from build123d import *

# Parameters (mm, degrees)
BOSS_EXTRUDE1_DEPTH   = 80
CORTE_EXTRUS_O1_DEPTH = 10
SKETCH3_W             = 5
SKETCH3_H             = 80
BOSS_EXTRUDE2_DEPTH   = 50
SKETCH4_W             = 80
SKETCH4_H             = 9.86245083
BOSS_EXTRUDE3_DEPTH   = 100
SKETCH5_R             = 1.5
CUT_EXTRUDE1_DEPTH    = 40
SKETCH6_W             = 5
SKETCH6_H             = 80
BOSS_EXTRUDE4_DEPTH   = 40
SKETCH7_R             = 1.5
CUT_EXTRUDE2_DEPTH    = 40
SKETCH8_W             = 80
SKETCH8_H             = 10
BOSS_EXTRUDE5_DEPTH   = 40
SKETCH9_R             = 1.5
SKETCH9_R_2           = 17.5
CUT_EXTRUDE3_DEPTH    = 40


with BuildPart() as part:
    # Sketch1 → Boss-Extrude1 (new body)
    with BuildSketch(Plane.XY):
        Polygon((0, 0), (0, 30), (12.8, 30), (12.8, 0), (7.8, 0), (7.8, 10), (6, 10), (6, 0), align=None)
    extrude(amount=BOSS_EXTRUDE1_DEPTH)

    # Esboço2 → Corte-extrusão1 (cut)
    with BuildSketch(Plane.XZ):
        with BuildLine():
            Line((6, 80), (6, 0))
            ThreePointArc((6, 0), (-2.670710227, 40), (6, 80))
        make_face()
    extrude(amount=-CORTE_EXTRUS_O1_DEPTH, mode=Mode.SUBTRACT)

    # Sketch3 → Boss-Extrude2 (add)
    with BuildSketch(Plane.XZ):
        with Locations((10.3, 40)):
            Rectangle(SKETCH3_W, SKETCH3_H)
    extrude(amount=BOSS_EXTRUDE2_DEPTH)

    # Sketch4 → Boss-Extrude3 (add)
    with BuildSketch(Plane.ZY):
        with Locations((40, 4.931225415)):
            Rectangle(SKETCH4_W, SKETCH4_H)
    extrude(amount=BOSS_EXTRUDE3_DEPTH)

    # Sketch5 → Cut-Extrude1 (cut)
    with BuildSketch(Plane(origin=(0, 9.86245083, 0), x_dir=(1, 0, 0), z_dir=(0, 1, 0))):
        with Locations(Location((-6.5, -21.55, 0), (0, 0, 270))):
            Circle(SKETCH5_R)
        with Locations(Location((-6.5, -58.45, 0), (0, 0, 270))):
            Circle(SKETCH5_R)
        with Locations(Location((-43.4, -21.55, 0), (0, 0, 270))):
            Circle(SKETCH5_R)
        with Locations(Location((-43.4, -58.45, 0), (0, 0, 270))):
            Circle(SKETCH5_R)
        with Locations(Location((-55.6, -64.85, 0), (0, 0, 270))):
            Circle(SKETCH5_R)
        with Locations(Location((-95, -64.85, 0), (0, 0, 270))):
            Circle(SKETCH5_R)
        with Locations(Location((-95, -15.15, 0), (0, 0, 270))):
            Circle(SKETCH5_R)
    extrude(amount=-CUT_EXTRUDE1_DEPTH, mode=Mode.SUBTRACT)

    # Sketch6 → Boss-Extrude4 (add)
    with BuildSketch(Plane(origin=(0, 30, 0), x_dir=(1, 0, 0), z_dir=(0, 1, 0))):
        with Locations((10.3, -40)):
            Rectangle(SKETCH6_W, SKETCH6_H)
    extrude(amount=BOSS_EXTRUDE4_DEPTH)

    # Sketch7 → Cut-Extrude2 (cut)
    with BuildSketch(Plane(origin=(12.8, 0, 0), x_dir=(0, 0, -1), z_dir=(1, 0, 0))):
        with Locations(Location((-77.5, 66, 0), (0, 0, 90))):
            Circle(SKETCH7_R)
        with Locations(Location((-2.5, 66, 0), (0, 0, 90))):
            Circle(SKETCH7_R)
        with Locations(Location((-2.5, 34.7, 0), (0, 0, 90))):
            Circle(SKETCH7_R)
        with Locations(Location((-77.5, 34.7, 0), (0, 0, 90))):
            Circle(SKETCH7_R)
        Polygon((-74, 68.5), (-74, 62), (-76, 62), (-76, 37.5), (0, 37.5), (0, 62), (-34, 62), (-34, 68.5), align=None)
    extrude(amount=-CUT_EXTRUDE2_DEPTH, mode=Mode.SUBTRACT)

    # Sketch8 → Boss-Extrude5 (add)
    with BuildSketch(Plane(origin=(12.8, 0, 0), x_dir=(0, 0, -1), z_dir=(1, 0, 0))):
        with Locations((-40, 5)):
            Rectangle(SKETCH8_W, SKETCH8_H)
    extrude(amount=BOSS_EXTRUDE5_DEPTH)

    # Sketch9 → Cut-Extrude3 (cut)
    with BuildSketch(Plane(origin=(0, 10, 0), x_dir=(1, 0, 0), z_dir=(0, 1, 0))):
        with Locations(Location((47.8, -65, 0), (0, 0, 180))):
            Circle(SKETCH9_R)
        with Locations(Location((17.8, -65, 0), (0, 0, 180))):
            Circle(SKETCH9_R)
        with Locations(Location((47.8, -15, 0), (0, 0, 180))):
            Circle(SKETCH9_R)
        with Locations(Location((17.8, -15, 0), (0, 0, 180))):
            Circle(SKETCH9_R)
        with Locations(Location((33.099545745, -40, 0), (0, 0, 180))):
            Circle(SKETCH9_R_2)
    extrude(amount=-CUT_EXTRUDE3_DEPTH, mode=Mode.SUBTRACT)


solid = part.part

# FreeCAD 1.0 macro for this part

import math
import FreeCAD as App
import Part
import Sketcher

V = App.Vector
Q = App.Units.Quantity

doc = App.newDocument("Part")
params = doc.addObject("Spreadsheet::Sheet", "Params")
for row, (alias, value) in enumerate([
    ("sketch1_width", "6 mm"),
    ("sketch1_width2", "5 mm"),
    ("sketch1_height", "30 mm"),
    ("sketch1_height2", "10 mm"),
    ("sketch1_width3", "1.8 mm"),
    ("pad1_length", "80 mm"),
    ("sketch2_radius", "96.6 mm"),
    ("sketch2_height", "80 mm"),
    ("pocket1_length", "10 mm"),
    ("sketch3_width", "5 mm"),
    ("sketch3_height", "80 mm"),
    ("pad2_length", "50 mm"),
    ("sketch4_height", "80 mm"),
    ("pad3_length", "100 mm"),
    ("sketch5_diameter", "3 mm"),
    ("pocket2_length", "40 mm"),
    ("sketch6_width", "5 mm"),
    ("sketch6_height", "80 mm"),
    ("pad4_length", "40 mm"),
    ("sketch7_diameter", "3 mm"),
    ("sketch7_height", "2 mm"),
    ("sketch7_height2", "76 mm"),
    ("sketch7_height3", "34 mm"),
    ("sketch7_width", "6.5 mm"),
    ("pocket3_length", "40 mm"),
    ("sketch8_width", "10 mm"),
    ("sketch8_height", "80 mm"),
    ("pad5_length", "40 mm"),
    ("sketch9_diameter", "3 mm"),
    ("sketch9_diameter2", "35 mm"),
    ("pocket4_length", "40 mm"),
], start=1):
    params.set(f"A{row}", alias)
    params.set(f"B{row}", "=" + value)
    params.setAlias(f"B{row}", alias)

body = doc.addObject("PartDesign::Body", "Body")

sketch1 = body.newObject("Sketcher::SketchObject", "Sketch")
sketch1.AttachmentSupport = (doc.getObject("XY_Plane"), [""])
sketch1.MapMode = "FlatFace"
sketch1.addGeometry([
    Part.LineSegment(V(0, 30, 0), V(0, 0, 0)),
    Part.LineSegment(V(0, 0, 0), V(6, 0, 0)),
    Part.LineSegment(V(6, 0, 0), V(6, 10, 0)),
    Part.LineSegment(V(6, 10, 0), V(7.8, 10, 0)),
    Part.LineSegment(V(7.8, 10, 0), V(7.8, 0, 0)),
    Part.LineSegment(V(7.8, 0, 0), V(12.8, 0, 0)),
    Part.LineSegment(V(12.8, 0, 0), V(12.8, 30, 0)),
    Part.LineSegment(V(12.8, 30, 0), V(0, 30, 0)),
], False)
sketch1.addConstraint([
    Sketcher.Constraint("Coincident", 0, 2, 1, 1),
    Sketcher.Constraint("Coincident", 1, 2, 2, 1),
    Sketcher.Constraint("Coincident", 2, 2, 3, 1),
    Sketcher.Constraint("Coincident", 3, 2, 4, 1),
    Sketcher.Constraint("Coincident", 4, 2, 5, 1),
    Sketcher.Constraint("Coincident", 5, 2, 6, 1),
    Sketcher.Constraint("Coincident", 6, 2, 7, 1),
    Sketcher.Constraint("Coincident", 7, 2, 0, 1),
    Sketcher.Constraint("Vertical", 0),
    Sketcher.Constraint("Horizontal", 1),
    Sketcher.Constraint("Vertical", 2),
    Sketcher.Constraint("Horizontal", 3),
    Sketcher.Constraint("Vertical", 4),
    Sketcher.Constraint("Horizontal", 5),
    Sketcher.Constraint("Vertical", 6),
    Sketcher.Constraint("Horizontal", 7),
    Sketcher.Constraint("Coincident", 0, 2, -1, 1),
    Sketcher.Constraint("PointOnObject", 4, 2, -1),
    Sketcher.Constraint("DistanceX", 1, 1, 1, 2, Q("6 mm")),
    Sketcher.Constraint("DistanceX", 5, 1, 5, 2, Q("5 mm")),
    Sketcher.Constraint("DistanceY", 0, 2, 0, 1, Q("30 mm")),
    Sketcher.Constraint("DistanceY", 2, 1, 2, 2, Q("10 mm")),
    Sketcher.Constraint("DistanceX", 3, 1, 3, 2, Q("1.8 mm")),
])
sketch1.setExpression("Constraints[18]", "Params.sketch1_width")
sketch1.setExpression("Constraints[19]", "Params.sketch1_width2")
sketch1.setExpression("Constraints[20]", "Params.sketch1_height")
sketch1.setExpression("Constraints[21]", "Params.sketch1_height2")
sketch1.setExpression("Constraints[22]", "Params.sketch1_width3")
pad1 = body.newObject("PartDesign::Pad", "Pad")
pad1.Profile = sketch1
pad1.setExpression("Length", "Params.pad1_length")

sketch2 = body.newObject("Sketcher::SketchObject", "Sketch001")
sketch2.AttachmentSupport = (doc.getObject("XZ_Plane"), [""])
sketch2.MapMode = "FlatFace"
sketch2.addGeometry([
    Part.LineSegment(V(6, 0, 0), V(6, 80, 0)),
    Part.ArcOfCircle(Part.Circle(V(94, 40, 0), V(0, 0, 1), 97), math.radians(156), math.radians(204)),
], False)
sketch2.addConstraint([
    Sketcher.Constraint("Coincident", 0, 1, 1, 2),
    Sketcher.Constraint("Coincident", 1, 1, 0, 2),
    Sketcher.Constraint("Vertical", 0),
    Sketcher.Constraint("PointOnObject", 0, 1, -1),
    Sketcher.Constraint("Radius", 1, Q("96.6 mm")),
    Sketcher.Constraint("DistanceY", 0, 1, 0, 2, Q("80 mm")),
    Sketcher.Constraint("DistanceX", -1, 1, 0, 1, Q("6 mm")),
])
sketch2.setExpression("Constraints[4]", "Params.sketch2_radius")
sketch2.setExpression("Constraints[5]", "Params.sketch2_height")
pocket1 = body.newObject("PartDesign::Pocket", "Pocket")
pocket1.Profile = sketch2
pocket1.setExpression("Length", "Params.pocket1_length")

sketch3 = body.newObject("Sketcher::SketchObject", "Sketch002")
sketch3.AttachmentSupport = (doc.getObject("XZ_Plane"), [""])
sketch3.MapMode = "FlatFace"
sketch3.addGeometry([
    Part.LineSegment(V(8, 80, 0), V(8, 0, 0)),
    Part.LineSegment(V(8, 0, 0), V(13, 0, 0)),
    Part.LineSegment(V(13, 0, 0), V(13, 80, 0)),
    Part.LineSegment(V(13, 80, 0), V(8, 80, 0)),
], False)
sketch3.addConstraint([
    Sketcher.Constraint("Coincident", 0, 2, 1, 1),
    Sketcher.Constraint("Coincident", 1, 2, 2, 1),
    Sketcher.Constraint("Coincident", 2, 2, 3, 1),
    Sketcher.Constraint("Coincident", 3, 2, 0, 1),
    Sketcher.Constraint("Vertical", 0),
    Sketcher.Constraint("Horizontal", 1),
    Sketcher.Constraint("Vertical", 2),
    Sketcher.Constraint("Horizontal", 3),
    Sketcher.Constraint("PointOnObject", 0, 2, -1),
    Sketcher.Constraint("DistanceX", 1, 1, 1, 2, Q("5 mm")),
    Sketcher.Constraint("DistanceY", 0, 2, 0, 1, Q("80 mm")),
    Sketcher.Constraint("DistanceX", -1, 1, 0, 2, Q("7.8 mm")),
])
sketch3.setExpression("Constraints[9]", "Params.sketch3_width")
sketch3.setExpression("Constraints[10]", "Params.sketch3_height")
pad2 = body.newObject("PartDesign::Pad", "Pad001")
pad2.Profile = sketch3
pad2.setExpression("Length", "Params.pad2_length")

sketch4 = body.newObject("Sketcher::SketchObject", "Sketch003")
sketch4.AttachmentSupport = (doc.getObject("YZ_Plane"), [""])
sketch4.MapMode = "FlatFace"
sketch4.addGeometry([
    Part.LineSegment(V(10, 0, 0), V(0, 0, 0)),
    Part.LineSegment(V(0, 0, 0), V(0, 80, 0)),
    Part.LineSegment(V(0, 80, 0), V(10, 80, 0)),
    Part.LineSegment(V(10, 80, 0), V(10, 0, 0)),
], False)
sketch4.addConstraint([
    Sketcher.Constraint("Coincident", 0, 2, 1, 1),
    Sketcher.Constraint("Coincident", 1, 2, 2, 1),
    Sketcher.Constraint("Coincident", 2, 2, 3, 1),
    Sketcher.Constraint("Coincident", 3, 2, 0, 1),
    Sketcher.Constraint("Horizontal", 0),
    Sketcher.Constraint("Vertical", 1),
    Sketcher.Constraint("Horizontal", 2),
    Sketcher.Constraint("Vertical", 3),
    Sketcher.Constraint("Coincident", 0, 2, -1, 1),
    Sketcher.Constraint("DistanceY", 1, 1, 1, 2, Q("80 mm")),
    Sketcher.Constraint("DistanceX", 0, 2, 0, 1, Q("9.862451 mm")),
])
sketch4.setExpression("Constraints[9]", "Params.sketch4_height")
pad3 = body.newObject("PartDesign::Pad", "Pad002")
pad3.Profile = sketch4
pad3.setExpression("Length", "Params.pad3_length")
pad3.Reversed = True

sketch5 = body.newObject("Sketcher::SketchObject", "Sketch004")
sketch5.AttachmentSupport = (doc.getObject("XZ_Plane"), [""])
sketch5.MapMode = "FlatFace"
sketch5.AttachmentOffset = App.Placement(V(0, 0, -9.862451), App.Rotation())
sketch5.addGeometry([
    Part.Circle(V(-6.5, 21.6, 0), V(0, 0, 1), 1.5),
    Part.Circle(V(-6.5, 58.5, 0), V(0, 0, 1), 1.5),
    Part.Circle(V(-43.4, 21.6, 0), V(0, 0, 1), 1.5),
    Part.Circle(V(-43.4, 58.5, 0), V(0, 0, 1), 1.5),
    Part.Circle(V(-55.6, 64.8, 0), V(0, 0, 1), 1.5),
    Part.Circle(V(-95, 64.8, 0), V(0, 0, 1), 1.5),
    Part.Circle(V(-95, 15.2, 0), V(0, 0, 1), 1.5),
], False)
sketch5.addConstraint([
    Sketcher.Constraint("Equal", 0, 1),
    Sketcher.Constraint("Equal", 1, 2),
    Sketcher.Constraint("Equal", 2, 3),
    Sketcher.Constraint("Equal", 3, 4),
    Sketcher.Constraint("Equal", 4, 5),
    Sketcher.Constraint("Equal", 5, 6),
    Sketcher.Constraint("Horizontal", 0, 3, 2, 3),
    Sketcher.Constraint("Horizontal", 1, 3, 3, 3),
    Sketcher.Constraint("Horizontal", 4, 3, 5, 3),
    Sketcher.Constraint("Vertical", 0, 3, 1, 3),
    Sketcher.Constraint("Vertical", 2, 3, 3, 3),
    Sketcher.Constraint("Vertical", 5, 3, 6, 3),
    Sketcher.Constraint("Diameter", 0, Q("3 mm")),
    Sketcher.Constraint("DistanceX", 5, 3, -1, 1, Q("95 mm")),
    Sketcher.Constraint("DistanceX", 0, 3, -1, 1, Q("6.5 mm")),
    Sketcher.Constraint("DistanceX", 2, 3, -1, 1, Q("43.4 mm")),
    Sketcher.Constraint("DistanceX", 4, 3, -1, 1, Q("55.6 mm")),
    Sketcher.Constraint("DistanceY", 0, 3, 1, 3, Q("36.9 mm")),
    Sketcher.Constraint("DistanceY", 3, 3, 4, 3, Q("6.4 mm")),
    Sketcher.Constraint("DistanceY", 6, 3, 5, 3, Q("49.7 mm")),
    Sketcher.Constraint("DistanceY", -1, 1, 0, 3, Q("21.55 mm")),
])
sketch5.setExpression("Constraints[12]", "Params.sketch5_diameter")
pocket2 = body.newObject("PartDesign::Pocket", "Pocket001")
pocket2.Profile = sketch5
pocket2.setExpression("Length", "Params.pocket2_length")
pocket2.Reversed = True

sketch6 = body.newObject("Sketcher::SketchObject", "Sketch005")
sketch6.AttachmentSupport = (doc.getObject("XZ_Plane"), [""])
sketch6.MapMode = "FlatFace"
sketch6.AttachmentOffset = App.Placement(V(0, 0, -30), App.Rotation())
sketch6.addGeometry([
    Part.LineSegment(V(8, 0, 0), V(8, 80, 0)),
    Part.LineSegment(V(8, 80, 0), V(13, 80, 0)),
    Part.LineSegment(V(13, 80, 0), V(13, 0, 0)),
    Part.LineSegment(V(13, 0, 0), V(8, 0, 0)),
], False)
sketch6.addConstraint([
    Sketcher.Constraint("Coincident", 0, 2, 1, 1),
    Sketcher.Constraint("Coincident", 1, 2, 2, 1),
    Sketcher.Constraint("Coincident", 2, 2, 3, 1),
    Sketcher.Constraint("Coincident", 3, 2, 0, 1),
    Sketcher.Constraint("Vertical", 0),
    Sketcher.Constraint("Horizontal", 1),
    Sketcher.Constraint("Vertical", 2),
    Sketcher.Constraint("Horizontal", 3),
    Sketcher.Constraint("PointOnObject", 2, 2, -1),
    Sketcher.Constraint("DistanceX", 1, 1, 1, 2, Q("5 mm")),
    Sketcher.Constraint("DistanceY", 0, 1, 0, 2, Q("80 mm")),
    Sketcher.Constraint("DistanceX", -1, 1, 0, 2, Q("7.8 mm")),
])
sketch6.setExpression("Constraints[9]", "Params.sketch6_width")
sketch6.setExpression("Constraints[10]", "Params.sketch6_height")
pad4 = body.newObject("PartDesign::Pad", "Pad003")
pad4.Profile = sketch6
pad4.setExpression("Length", "Params.pad4_length")
pad4.Reversed = True

sketch7 = body.newObject("Sketcher::SketchObject", "Sketch006")
sketch7.AttachmentSupport = (doc.getObject("YZ_Plane"), [""])
sketch7.MapMode = "FlatFace"
sketch7.AttachmentOffset = App.Placement(V(0, 0, 12.8), App.Rotation())
sketch7.addGeometry([
    Part.Circle(V(66, 77.5, 0), V(0, 0, 1), 1.5),
    Part.Circle(V(66, 2.5, 0), V(0, 0, 1), 1.5),
    Part.Circle(V(34.7, 2.5, 0), V(0, 0, 1), 1.5),
    Part.Circle(V(34.7, 77.5, 0), V(0, 0, 1), 1.5),
    Part.LineSegment(V(68.5, 74, 0), V(62, 74, 0)),
    Part.LineSegment(V(62, 74, 0), V(62, 76, 0)),
    Part.LineSegment(V(62, 76, 0), V(37.5, 76, 0)),
    Part.LineSegment(V(37.5, 76, 0), V(37.5, 0, 0)),
    Part.LineSegment(V(37.5, 0, 0), V(62, 0, 0)),
    Part.LineSegment(V(62, 0, 0), V(62, 34, 0)),
    Part.LineSegment(V(62, 34, 0), V(68.5, 34, 0)),
    Part.LineSegment(V(68.5, 34, 0), V(68.5, 74, 0)),
], False)
sketch7.addConstraint([
    Sketcher.Constraint("Coincident", 4, 2, 5, 1),
    Sketcher.Constraint("Coincident", 5, 2, 6, 1),
    Sketcher.Constraint("Coincident", 6, 2, 7, 1),
    Sketcher.Constraint("Coincident", 7, 2, 8, 1),
    Sketcher.Constraint("Coincident", 8, 2, 9, 1),
    Sketcher.Constraint("Coincident", 9, 2, 10, 1),
    Sketcher.Constraint("Coincident", 10, 2, 11, 1),
    Sketcher.Constraint("Coincident", 11, 2, 4, 1),
    Sketcher.Constraint("Horizontal", 4),
    Sketcher.Constraint("Vertical", 5),
    Sketcher.Constraint("Horizontal", 6),
    Sketcher.Constraint("Vertical", 7),
    Sketcher.Constraint("Horizontal", 8),
    Sketcher.Constraint("Vertical", 9),
    Sketcher.Constraint("Horizontal", 10),
    Sketcher.Constraint("Vertical", 11),
    Sketcher.Constraint("Equal", 0, 1),
    Sketcher.Constraint("Equal", 1, 2),
    Sketcher.Constraint("Equal", 2, 3),
    Sketcher.Constraint("PointOnObject", 7, 2, -1),
    Sketcher.Constraint("Horizontal", 1, 3, 2, 3),
    Sketcher.Constraint("Horizontal", 0, 3, 3, 3),
    Sketcher.Constraint("Vertical", 0, 3, 1, 3),
    Sketcher.Constraint("Vertical", 2, 3, 3, 3),
    Sketcher.Constraint("Vertical", 5, 2, 8, 2),
    Sketcher.Constraint("Diameter", 0, Q("3 mm")),
    Sketcher.Constraint("DistanceY", 5, 1, 5, 2, Q("2 mm")),
    Sketcher.Constraint("DistanceY", 7, 2, 7, 1, Q("76 mm")),
    Sketcher.Constraint("DistanceY", 9, 1, 9, 2, Q("34 mm")),
    Sketcher.Constraint("DistanceX", 4, 2, 4, 1, Q("6.5 mm")),
    Sketcher.Constraint("DistanceX", 6, 2, 6, 1, Q("24.5 mm")),
    Sketcher.Constraint("DistanceX", -1, 1, 0, 3, Q("66 mm")),
    Sketcher.Constraint("DistanceX", -1, 1, 4, 2, Q("62 mm")),
    Sketcher.Constraint("DistanceY", 1, 3, 0, 3, Q("75 mm")),
    Sketcher.Constraint("DistanceY", -1, 1, 0, 3, Q("77.5 mm")),
    Sketcher.Constraint("DistanceX", -1, 1, 2, 3, Q("34.7 mm")),
])
sketch7.setExpression("Constraints[25]", "Params.sketch7_diameter")
sketch7.setExpression("Constraints[26]", "Params.sketch7_height")
sketch7.setExpression("Constraints[27]", "Params.sketch7_height2")
sketch7.setExpression("Constraints[28]", "Params.sketch7_height3")
sketch7.setExpression("Constraints[29]", "Params.sketch7_width")
pocket3 = body.newObject("PartDesign::Pocket", "Pocket002")
pocket3.Profile = sketch7
pocket3.setExpression("Length", "Params.pocket3_length")

sketch8 = body.newObject("Sketcher::SketchObject", "Sketch007")
sketch8.AttachmentSupport = (doc.getObject("YZ_Plane"), [""])
sketch8.MapMode = "FlatFace"
sketch8.AttachmentOffset = App.Placement(V(0, 0, 12.8), App.Rotation())
sketch8.addGeometry([
    Part.LineSegment(V(10, 80, 0), V(0, 80, 0)),
    Part.LineSegment(V(0, 80, 0), V(0, 0, 0)),
    Part.LineSegment(V(0, 0, 0), V(10, 0, 0)),
    Part.LineSegment(V(10, 0, 0), V(10, 80, 0)),
], False)
sketch8.addConstraint([
    Sketcher.Constraint("Coincident", 0, 2, 1, 1),
    Sketcher.Constraint("Coincident", 1, 2, 2, 1),
    Sketcher.Constraint("Coincident", 2, 2, 3, 1),
    Sketcher.Constraint("Coincident", 3, 2, 0, 1),
    Sketcher.Constraint("Horizontal", 0),
    Sketcher.Constraint("Vertical", 1),
    Sketcher.Constraint("Horizontal", 2),
    Sketcher.Constraint("Vertical", 3),
    Sketcher.Constraint("Coincident", 1, 2, -1, 1),
    Sketcher.Constraint("DistanceX", 0, 2, 0, 1, Q("10 mm")),
    Sketcher.Constraint("DistanceY", 1, 2, 1, 1, Q("80 mm")),
])
sketch8.setExpression("Constraints[9]", "Params.sketch8_width")
sketch8.setExpression("Constraints[10]", "Params.sketch8_height")
pad5 = body.newObject("PartDesign::Pad", "Pad004")
pad5.Profile = sketch8
pad5.setExpression("Length", "Params.pad5_length")

sketch9 = body.newObject("Sketcher::SketchObject", "Sketch008")
sketch9.AttachmentSupport = (doc.getObject("XZ_Plane"), [""])
sketch9.MapMode = "FlatFace"
sketch9.AttachmentOffset = App.Placement(V(0, 0, -10), App.Rotation())
sketch9.addGeometry([
    Part.Circle(V(47.8, 65, 0), V(0, 0, 1), 1.5),
    Part.Circle(V(17.8, 65, 0), V(0, 0, 1), 1.5),
    Part.Circle(V(47.8, 15, 0), V(0, 0, 1), 1.5),
    Part.Circle(V(17.8, 15, 0), V(0, 0, 1), 1.5),
    Part.Circle(V(33.1, 40, 0), V(0, 0, 1), 17.5),
], False)
sketch9.addConstraint([
    Sketcher.Constraint("Equal", 0, 1),
    Sketcher.Constraint("Equal", 1, 2),
    Sketcher.Constraint("Equal", 2, 3),
    Sketcher.Constraint("Horizontal", 0, 3, 1, 3),
    Sketcher.Constraint("Horizontal", 2, 3, 3, 3),
    Sketcher.Constraint("Vertical", 0, 3, 2, 3),
    Sketcher.Constraint("Vertical", 1, 3, 3, 3),
    Sketcher.Constraint("Diameter", 0, Q("3 mm")),
    Sketcher.Constraint("Diameter", 4, Q("35 mm")),
    Sketcher.Constraint("DistanceY", -1, 1, 0, 3, Q("65 mm")),
    Sketcher.Constraint("DistanceY", -1, 1, 2, 3, Q("15 mm")),
    Sketcher.Constraint("DistanceY", -1, 1, 4, 3, Q("40 mm")),
    Sketcher.Constraint("DistanceX", 1, 3, 0, 3, Q("30 mm")),
    Sketcher.Constraint("DistanceX", -1, 1, 0, 3, Q("47.8 mm")),
    Sketcher.Constraint("DistanceX", -1, 1, 4, 3, Q("33.099546 mm")),
])
sketch9.setExpression("Constraints[7]", "Params.sketch9_diameter")
sketch9.setExpression("Constraints[8]", "Params.sketch9_diameter2")
pocket4 = body.newObject("PartDesign::Pocket", "Pocket003")
pocket4.Profile = sketch9
pocket4.setExpression("Length", "Params.pocket4_length")
pocket4.Reversed = True

doc.recompute()
